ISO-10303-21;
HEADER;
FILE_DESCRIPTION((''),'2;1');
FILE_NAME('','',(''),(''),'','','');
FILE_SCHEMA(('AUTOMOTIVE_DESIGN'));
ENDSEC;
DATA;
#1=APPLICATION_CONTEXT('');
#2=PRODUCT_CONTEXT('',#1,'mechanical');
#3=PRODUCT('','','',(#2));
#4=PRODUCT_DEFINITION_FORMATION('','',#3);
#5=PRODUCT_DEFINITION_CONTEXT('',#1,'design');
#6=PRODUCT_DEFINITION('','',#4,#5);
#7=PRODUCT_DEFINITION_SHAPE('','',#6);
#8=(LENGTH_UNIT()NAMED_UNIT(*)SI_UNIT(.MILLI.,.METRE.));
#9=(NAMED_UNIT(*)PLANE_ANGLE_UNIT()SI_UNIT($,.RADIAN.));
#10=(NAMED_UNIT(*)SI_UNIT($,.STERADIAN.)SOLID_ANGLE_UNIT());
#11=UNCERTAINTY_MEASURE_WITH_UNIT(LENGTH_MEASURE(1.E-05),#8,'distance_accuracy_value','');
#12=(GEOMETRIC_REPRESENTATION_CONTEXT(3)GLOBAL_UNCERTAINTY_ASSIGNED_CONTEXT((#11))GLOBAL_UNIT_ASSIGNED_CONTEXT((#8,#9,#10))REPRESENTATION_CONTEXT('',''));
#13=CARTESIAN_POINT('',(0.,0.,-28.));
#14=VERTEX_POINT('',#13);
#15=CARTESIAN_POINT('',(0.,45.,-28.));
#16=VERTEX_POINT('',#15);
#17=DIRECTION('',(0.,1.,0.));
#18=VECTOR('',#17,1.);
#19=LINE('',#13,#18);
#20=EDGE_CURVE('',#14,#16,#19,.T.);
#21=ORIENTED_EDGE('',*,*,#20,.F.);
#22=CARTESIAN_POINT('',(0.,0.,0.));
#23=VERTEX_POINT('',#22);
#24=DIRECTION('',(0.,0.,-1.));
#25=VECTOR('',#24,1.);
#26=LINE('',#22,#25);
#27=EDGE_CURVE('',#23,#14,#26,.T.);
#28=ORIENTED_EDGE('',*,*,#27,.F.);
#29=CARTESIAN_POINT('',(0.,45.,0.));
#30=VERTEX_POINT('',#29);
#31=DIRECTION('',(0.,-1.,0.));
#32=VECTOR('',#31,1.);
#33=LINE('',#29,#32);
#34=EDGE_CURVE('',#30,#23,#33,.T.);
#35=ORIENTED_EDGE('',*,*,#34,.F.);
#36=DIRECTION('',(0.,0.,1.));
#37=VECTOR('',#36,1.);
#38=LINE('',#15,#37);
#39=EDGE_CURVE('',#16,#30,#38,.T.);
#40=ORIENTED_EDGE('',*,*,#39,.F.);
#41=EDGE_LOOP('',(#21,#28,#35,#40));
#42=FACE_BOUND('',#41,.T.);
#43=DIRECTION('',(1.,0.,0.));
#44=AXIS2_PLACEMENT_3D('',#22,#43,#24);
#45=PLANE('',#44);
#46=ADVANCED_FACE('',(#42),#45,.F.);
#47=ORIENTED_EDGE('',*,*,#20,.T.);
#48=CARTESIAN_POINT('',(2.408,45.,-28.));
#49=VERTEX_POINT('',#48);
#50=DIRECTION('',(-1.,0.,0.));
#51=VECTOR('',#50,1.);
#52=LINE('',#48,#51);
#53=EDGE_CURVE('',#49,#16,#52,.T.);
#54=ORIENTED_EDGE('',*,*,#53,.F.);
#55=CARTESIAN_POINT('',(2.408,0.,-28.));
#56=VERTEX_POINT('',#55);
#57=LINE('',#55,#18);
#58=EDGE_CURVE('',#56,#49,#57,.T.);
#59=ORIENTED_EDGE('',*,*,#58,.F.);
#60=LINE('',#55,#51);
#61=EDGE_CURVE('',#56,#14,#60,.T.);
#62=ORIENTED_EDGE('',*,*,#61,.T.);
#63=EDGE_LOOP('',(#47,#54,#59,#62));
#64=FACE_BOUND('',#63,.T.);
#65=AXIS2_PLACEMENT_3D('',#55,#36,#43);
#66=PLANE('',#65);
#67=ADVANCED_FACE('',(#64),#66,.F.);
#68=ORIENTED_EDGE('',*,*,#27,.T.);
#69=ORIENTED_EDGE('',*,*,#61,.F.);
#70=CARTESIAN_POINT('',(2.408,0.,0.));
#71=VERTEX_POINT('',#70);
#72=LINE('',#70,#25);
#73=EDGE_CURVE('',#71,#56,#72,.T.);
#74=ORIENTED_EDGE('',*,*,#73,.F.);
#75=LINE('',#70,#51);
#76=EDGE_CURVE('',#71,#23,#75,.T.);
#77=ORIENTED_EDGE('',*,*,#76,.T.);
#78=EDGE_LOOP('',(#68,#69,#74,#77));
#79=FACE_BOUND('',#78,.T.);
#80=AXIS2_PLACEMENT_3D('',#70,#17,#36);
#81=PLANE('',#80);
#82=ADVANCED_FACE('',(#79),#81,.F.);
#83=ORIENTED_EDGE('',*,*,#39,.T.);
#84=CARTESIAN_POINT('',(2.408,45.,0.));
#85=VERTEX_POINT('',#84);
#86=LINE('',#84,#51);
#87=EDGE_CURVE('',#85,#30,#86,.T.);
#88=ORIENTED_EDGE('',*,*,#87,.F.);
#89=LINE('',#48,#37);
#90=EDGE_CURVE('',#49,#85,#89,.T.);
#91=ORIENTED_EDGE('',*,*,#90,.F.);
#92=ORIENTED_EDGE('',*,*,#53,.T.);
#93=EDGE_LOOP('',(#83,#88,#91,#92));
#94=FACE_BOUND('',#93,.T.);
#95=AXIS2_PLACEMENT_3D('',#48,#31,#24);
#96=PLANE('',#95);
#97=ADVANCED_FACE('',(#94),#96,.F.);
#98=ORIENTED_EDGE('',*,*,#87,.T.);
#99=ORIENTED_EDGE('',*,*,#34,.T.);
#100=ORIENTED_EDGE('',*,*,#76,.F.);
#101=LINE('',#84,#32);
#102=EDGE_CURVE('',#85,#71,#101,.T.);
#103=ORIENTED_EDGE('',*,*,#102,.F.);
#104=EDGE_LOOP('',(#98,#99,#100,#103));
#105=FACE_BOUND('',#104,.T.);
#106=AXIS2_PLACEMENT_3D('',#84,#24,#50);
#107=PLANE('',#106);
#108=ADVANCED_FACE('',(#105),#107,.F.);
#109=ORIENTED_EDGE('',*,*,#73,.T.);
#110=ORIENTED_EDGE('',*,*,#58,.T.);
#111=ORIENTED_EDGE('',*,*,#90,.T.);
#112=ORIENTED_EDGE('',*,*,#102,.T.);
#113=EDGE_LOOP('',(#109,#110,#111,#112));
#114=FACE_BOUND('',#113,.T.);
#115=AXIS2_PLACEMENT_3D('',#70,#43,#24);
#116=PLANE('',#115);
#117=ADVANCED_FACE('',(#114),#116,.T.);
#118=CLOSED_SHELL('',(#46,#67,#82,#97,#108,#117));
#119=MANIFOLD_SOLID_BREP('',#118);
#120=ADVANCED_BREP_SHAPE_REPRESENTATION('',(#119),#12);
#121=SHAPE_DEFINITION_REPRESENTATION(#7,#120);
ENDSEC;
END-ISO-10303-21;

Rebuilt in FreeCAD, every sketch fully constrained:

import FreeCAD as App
import Part
import Sketcher

V = App.Vector
Q = App.Units.Quantity


def add_polygon(sketch, points):
    """Adds a closed chain of lines whose ends are joined by coincident constraints."""
    first, n = sketch.GeometryCount, len(points)
    for a, b in zip(points, points[1:] + points[:1]):
        sketch.addGeometry(Part.LineSegment(App.Vector(*a, 0), App.Vector(*b, 0)), False)
    for i in range(n):
        sketch.addConstraint(Sketcher.Constraint("Coincident", first + i, 2, first + (i + 1) % n, 1))

doc = App.newDocument("Part")
params = doc.addObject("Spreadsheet::Sheet", "Params")
for row, (alias, value) in enumerate([
    ("sketch1_width", "45 mm"),
    ("sketch1_height", "28 mm"),
    ("pad1_length", "2.408 mm"),
], start=1):
    params.set(f"A{row}", alias)
    params.set(f"B{row}", "=" + value)
    params.setAlias(f"B{row}", alias)

body = doc.addObject("PartDesign::Body", "Body")

# Sketch on YZ plane
sketch1 = body.newObject("Sketcher::SketchObject", "Sketch")
sketch1.AttachmentSupport = (doc.getObject("YZ_Plane"), [""])
sketch1.MapMode = "FlatFace"
add_polygon(sketch1, [(45, 0), (0, 0), (0, -28), (45, -28)])  # lines 0-3
sketch1.addConstraint(Sketcher.Constraint("Horizontal", 0))
sketch1.addConstraint(Sketcher.Constraint("Vertical", 1))
sketch1.addConstraint(Sketcher.Constraint("Horizontal", 2))
sketch1.addConstraint(Sketcher.Constraint("Vertical", 3))
sketch1.addConstraint(Sketcher.Constraint("Coincident", 0, 2, -1, 1))
sketch1.addConstraint(Sketcher.Constraint("DistanceX", 0, 2, 0, 1, Q("45 mm")))
sketch1.addConstraint(Sketcher.Constraint("DistanceY", 1, 2, 1, 1, Q("28 mm")))
sketch1.setExpression("Constraints[9]", "Params.sketch1_width")
sketch1.setExpression("Constraints[10]", "Params.sketch1_height")
pad1 = body.newObject("PartDesign::Pad", "Pad")
pad1.Profile = sketch1
pad1.setExpression("Length", "Params.pad1_length")

doc.recompute()
